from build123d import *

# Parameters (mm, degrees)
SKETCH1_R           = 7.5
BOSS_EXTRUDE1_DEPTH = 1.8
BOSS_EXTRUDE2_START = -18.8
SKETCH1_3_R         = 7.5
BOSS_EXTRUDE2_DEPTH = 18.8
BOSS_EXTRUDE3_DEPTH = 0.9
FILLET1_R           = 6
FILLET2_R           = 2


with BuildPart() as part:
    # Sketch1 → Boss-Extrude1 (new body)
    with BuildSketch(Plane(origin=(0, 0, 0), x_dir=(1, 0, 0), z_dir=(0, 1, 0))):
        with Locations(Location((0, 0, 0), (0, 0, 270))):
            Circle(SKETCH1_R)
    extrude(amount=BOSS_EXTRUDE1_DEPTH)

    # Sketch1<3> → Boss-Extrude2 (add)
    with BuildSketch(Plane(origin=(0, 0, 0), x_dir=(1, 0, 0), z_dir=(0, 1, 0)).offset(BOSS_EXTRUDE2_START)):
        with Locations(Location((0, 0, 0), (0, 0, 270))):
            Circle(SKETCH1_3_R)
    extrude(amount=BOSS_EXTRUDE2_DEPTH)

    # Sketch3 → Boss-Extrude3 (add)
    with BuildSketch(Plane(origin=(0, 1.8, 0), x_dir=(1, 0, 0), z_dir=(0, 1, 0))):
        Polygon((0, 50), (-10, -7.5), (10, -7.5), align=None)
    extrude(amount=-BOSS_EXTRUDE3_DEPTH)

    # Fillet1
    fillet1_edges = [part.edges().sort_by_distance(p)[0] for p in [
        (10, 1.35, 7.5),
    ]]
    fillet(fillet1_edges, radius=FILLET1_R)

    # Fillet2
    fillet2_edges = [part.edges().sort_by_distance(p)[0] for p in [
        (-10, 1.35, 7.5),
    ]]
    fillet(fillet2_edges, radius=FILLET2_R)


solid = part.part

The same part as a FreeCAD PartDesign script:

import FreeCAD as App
import Part
import Sketcher
from FreeCAD import Vector


def edges_at(feature, points):
    """Names of the edges that pass closest to the given points."""
    edges = feature.Shape.Edges
    near = lambda p: min(range(len(edges)), key=lambda i: edges[i].distToShape(Part.Vertex(*p))[0])
    return sorted({f"Edge{near(p) + 1}" for p in points})


def add_polygon(sketch, points):
    """Adds a closed chain of lines whose ends are joined by coincident constraints."""
    first, n = sketch.GeometryCount, len(points)
    for a, b in zip(points, points[1:] + points[:1]):
        sketch.addGeometry(Part.LineSegment(App.Vector(*a, 0), App.Vector(*b, 0)), False)
    for i in range(n):
        sketch.addConstraint(Sketcher.Constraint("Coincident", first + i, 2, first + (i + 1) % n, 1))

doc = App.newDocument("Part")
body = doc.addObject("PartDesign::Body", "Body")

sketch1 = doc.addObject("Sketcher::SketchObject", "Sketch")
body.addObject(sketch1)
sketch1.AttachmentSupport = (doc.XZ_Plane, [""])
sketch1.MapMode = "FlatFace"
sketch1.addGeometry(Part.Circle(Vector(0, 0, 0), Vector(0, 0, 1), 8), False)
sketch1.addConstraint(Sketcher.Constraint("Coincident", 0, 3, -1, 1))
sketch1.addConstraint(Sketcher.Constraint("Diameter", 0, 15.0))
pad1 = doc.addObject("PartDesign::Pad", "Pad")
body.addObject(pad1)
pad1.Profile = sketch1
pad1.Length = 1.8
pad1.Reversed = True

sketch2 = doc.addObject("Sketcher::SketchObject", "Sketch001")
body.addObject(sketch2)
sketch2.AttachmentSupport = (doc.XZ_Plane, [""])
sketch2.MapMode = "FlatFace"
sketch2.AttachmentOffset = App.Placement(Vector(0, 0, 18.8), App.Rotation())
sketch2.addGeometry(Part.Circle(Vector(0, 0, 0), Vector(0, 0, 1), 8), False)
sketch2.addConstraint(Sketcher.Constraint("Coincident", 0, 3, -1, 1))
sketch2.addConstraint(Sketcher.Constraint("Diameter", 0, 15.0))
pad2 = doc.addObject("PartDesign::Pad", "Pad001")
body.addObject(pad2)
pad2.Profile = sketch2
pad2.Length = 18.8
pad2.Reversed = True

sketch3 = doc.addObject("Sketcher::SketchObject", "Sketch002")
body.addObject(sketch3)
sketch3.AttachmentSupport = (doc.XZ_Plane, [""])
sketch3.MapMode = "FlatFace"
sketch3.AttachmentOffset = App.Placement(Vector(0, 0, -1.8), App.Rotation())
add_polygon(sketch3, [(0, -50), (-10, 8), (10, 8)])
sketch3.addConstraint(Sketcher.Constraint("Horizontal", 1))
sketch3.addConstraint(Sketcher.Constraint("PointOnObject", 2, 2, -2))
sketch3.addConstraint(Sketcher.Constraint("Equal", 0, 2))
sketch3.addConstraint(Sketcher.Constraint("DistanceX", 1, 1, 1, 2, 20.0))
sketch3.addConstraint(Sketcher.Constraint("DistanceY", 2, 2, -1, 1, 50.0))
sketch3.addConstraint(Sketcher.Constraint("DistanceY", -1, 1, 0, 2, 7.5))
pad3 = doc.addObject("PartDesign::Pad", "Pad002")
body.addObject(pad3)
pad3.Profile = sketch3
pad3.Length = 0.9
doc.recompute()

fillet = doc.addObject("PartDesign::Fillet", "Fillet")
body.addObject(fillet)
fillet.Base = (pad3, edges_at(pad3, [(10, 1.35, 7.5)]))
fillet.Radius = 6
doc.recompute()

fillet2 = doc.addObject("PartDesign::Fillet", "Fillet001")
body.addObject(fillet2)
fillet2.Base = (fillet, edges_at(fillet, [(-10, 1.35, 7.5)]))
fillet2.Radius = 2

doc.recompute()
